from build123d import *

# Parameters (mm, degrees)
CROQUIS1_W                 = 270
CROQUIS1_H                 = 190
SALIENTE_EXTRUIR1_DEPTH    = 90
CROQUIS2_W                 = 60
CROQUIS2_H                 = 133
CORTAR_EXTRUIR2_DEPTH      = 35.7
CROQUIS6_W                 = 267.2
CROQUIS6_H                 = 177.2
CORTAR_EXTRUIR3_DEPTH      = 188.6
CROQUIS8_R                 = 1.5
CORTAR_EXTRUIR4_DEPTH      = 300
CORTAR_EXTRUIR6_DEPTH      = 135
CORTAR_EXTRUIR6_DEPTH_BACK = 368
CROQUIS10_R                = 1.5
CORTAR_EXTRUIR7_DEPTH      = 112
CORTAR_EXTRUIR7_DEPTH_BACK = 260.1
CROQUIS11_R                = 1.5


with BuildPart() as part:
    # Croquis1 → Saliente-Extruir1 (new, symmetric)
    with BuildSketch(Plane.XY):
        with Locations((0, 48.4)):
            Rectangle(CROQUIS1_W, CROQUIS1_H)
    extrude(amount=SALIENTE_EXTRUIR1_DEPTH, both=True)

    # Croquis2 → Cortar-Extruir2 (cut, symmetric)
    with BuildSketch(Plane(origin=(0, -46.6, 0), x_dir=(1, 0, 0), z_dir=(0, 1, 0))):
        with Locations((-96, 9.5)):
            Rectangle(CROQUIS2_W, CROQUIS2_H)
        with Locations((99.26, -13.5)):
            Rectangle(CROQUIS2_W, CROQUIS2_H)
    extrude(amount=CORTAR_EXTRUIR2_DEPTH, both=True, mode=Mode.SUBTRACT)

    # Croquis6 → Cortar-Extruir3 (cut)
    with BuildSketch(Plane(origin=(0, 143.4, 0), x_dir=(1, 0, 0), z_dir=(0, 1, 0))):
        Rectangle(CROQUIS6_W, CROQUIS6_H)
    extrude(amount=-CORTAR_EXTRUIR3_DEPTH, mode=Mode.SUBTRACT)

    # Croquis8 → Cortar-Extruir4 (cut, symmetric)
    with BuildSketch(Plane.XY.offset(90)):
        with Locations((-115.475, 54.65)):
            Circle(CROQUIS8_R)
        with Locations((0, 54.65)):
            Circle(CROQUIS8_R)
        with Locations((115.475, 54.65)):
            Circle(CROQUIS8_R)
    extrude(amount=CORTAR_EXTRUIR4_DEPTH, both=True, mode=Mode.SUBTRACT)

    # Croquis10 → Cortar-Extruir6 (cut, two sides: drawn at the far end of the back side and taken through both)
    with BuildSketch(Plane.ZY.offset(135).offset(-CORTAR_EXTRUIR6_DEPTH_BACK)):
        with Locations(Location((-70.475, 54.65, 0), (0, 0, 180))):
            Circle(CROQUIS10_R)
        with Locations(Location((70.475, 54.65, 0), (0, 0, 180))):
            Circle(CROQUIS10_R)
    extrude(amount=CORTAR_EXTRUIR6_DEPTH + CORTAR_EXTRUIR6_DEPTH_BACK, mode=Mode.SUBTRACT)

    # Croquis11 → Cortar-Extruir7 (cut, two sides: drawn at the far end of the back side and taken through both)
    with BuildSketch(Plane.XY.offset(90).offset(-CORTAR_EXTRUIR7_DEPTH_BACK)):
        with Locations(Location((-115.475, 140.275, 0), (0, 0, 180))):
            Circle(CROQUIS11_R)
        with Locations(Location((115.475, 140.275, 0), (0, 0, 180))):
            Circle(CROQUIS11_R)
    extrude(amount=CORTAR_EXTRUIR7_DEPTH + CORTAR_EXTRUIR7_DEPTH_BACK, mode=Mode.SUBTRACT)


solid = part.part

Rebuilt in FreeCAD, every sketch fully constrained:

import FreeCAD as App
import Part
import Sketcher
from FreeCAD import Vector
Q = App.Units.Quantity

doc = App.newDocument("Part")
body = doc.addObject("PartDesign::Body", "Body")

# Sketch on XY plane
sketch1 = body.newObject("Sketcher::SketchObject", "Sketch")
sketch1.AttachmentSupport = (doc.getObject("XY_Plane"), [""])
sketch1.MapMode = "FlatFace"
sketch1.addGeometry([
    Part.LineSegment(Vector(-135, 143, 0), Vector(-135, -47, 0)),
    Part.LineSegment(Vector(-135, -47, 0), Vector(135, -47, 0)),
    Part.LineSegment(Vector(135, -47, 0), Vector(135, 143, 0)),
    Part.LineSegment(Vector(135, 143, 0), Vector(-135, 143, 0)),
], False)
sketch1.addConstraint([
    Sketcher.Constraint("Coincident", 0, 2, 1, 1),
    Sketcher.Constraint("Coincident", 1, 2, 2, 1),
    Sketcher.Constraint("Coincident", 2, 2, 3, 1),
    Sketcher.Constraint("Coincident", 3, 2, 0, 1),
    Sketcher.Constraint("Vertical", 0),
    Sketcher.Constraint("Horizontal", 1),
    Sketcher.Constraint("Vertical", 2),
    Sketcher.Constraint("Horizontal", 3),
    Sketcher.Constraint("DistanceX", 1, 1, 1, 2, Q("270 mm")),
    Sketcher.Constraint("DistanceY", 0, 2, 0, 1, Q("190 mm")),
    Sketcher.Constraint("DistanceX", 0, 2, -1, 1, Q("135 mm")),
    Sketcher.Constraint("DistanceY", 0, 2, -1, 1, Q("46.6 mm")),
])
pad1 = body.newObject("PartDesign::Pad", "Pad")
pad1.Profile = sketch1
pad1.Length = 180
pad1.Midplane = True

# Sketch on XZ plane
sketch2 = body.newObject("Sketcher::SketchObject", "Sketch001")
sketch2.AttachmentSupport = (doc.getObject("XZ_Plane"), [""])
sketch2.MapMode = "FlatFace"
sketch2.AttachmentOffset = App.Placement(Vector(0, 0, 46.6), App.Rotation())
sketch2.addGeometry([
    Part.LineSegment(Vector(-126, -76, 0), Vector(-126, 57, 0)),  # 0
    Part.LineSegment(Vector(-126, 57, 0), Vector(-66, 57, 0)),  # 1
    Part.LineSegment(Vector(-66, 57, 0), Vector(-66, -76, 0)),  # 2
    Part.LineSegment(Vector(-66, -76, 0), Vector(-126, -76, 0)),  # 3
    Part.LineSegment(Vector(69, -53, 0), Vector(69, 80, 0)),  # 4
    Part.LineSegment(Vector(69, 80, 0), Vector(129, 80, 0)),  # 5
    Part.LineSegment(Vector(129, 80, 0), Vector(129, -53, 0)),  # 6
    Part.LineSegment(Vector(129, -53, 0), Vector(69, -53, 0)),  # 7
], False)
sketch2.addConstraint([
    Sketcher.Constraint("Coincident", 0, 2, 1, 1),
    Sketcher.Constraint("Coincident", 1, 2, 2, 1),
    Sketcher.Constraint("Coincident", 2, 2, 3, 1),
    Sketcher.Constraint("Coincident", 3, 2, 0, 1),
    Sketcher.Constraint("Coincident", 4, 2, 5, 1),
    Sketcher.Constraint("Coincident", 5, 2, 6, 1),
    Sketcher.Constraint("Coincident", 6, 2, 7, 1),
    Sketcher.Constraint("Coincident", 7, 2, 4, 1),
    Sketcher.Constraint("Vertical", 0),
    Sketcher.Constraint("Horizontal", 1),
    Sketcher.Constraint("Vertical", 2),
    Sketcher.Constraint("Horizontal", 3),
    Sketcher.Constraint("Vertical", 4),
    Sketcher.Constraint("Horizontal", 5),
    Sketcher.Constraint("Vertical", 6),
    Sketcher.Constraint("Horizontal", 7),
    Sketcher.Constraint("Equal", 3, 5),
    Sketcher.Constraint("Equal", 2, 4),
    Sketcher.Constraint("DistanceX", 1, 1, 1, 2, Q("60 mm")),
    Sketcher.Constraint("DistanceY", 0, 1, 0, 2, Q("133 mm")),
    Sketcher.Constraint("DistanceX", 0, 2, -1, 1, Q("126 mm")),
    Sketcher.Constraint("DistanceY", -1, 1, 0, 2, Q("57 mm")),
    Sketcher.Constraint("DistanceY", -1, 1, 4, 2, Q("80 mm")),
    Sketcher.Constraint("DistanceX", -1, 1, 4, 2, Q("69.26 mm")),
])
pocket1 = body.newObject("PartDesign::Pocket", "Pocket")
pocket1.Profile = sketch2
pocket1.Length = 71.4
pocket1.Midplane = True

# Sketch on XZ plane
sketch3 = body.newObject("Sketcher::SketchObject", "Sketch002")
sketch3.AttachmentSupport = (doc.getObject("XZ_Plane"), [""])
sketch3.MapMode = "FlatFace"
sketch3.AttachmentOffset = App.Placement(Vector(0, 0, -143.4), App.Rotation())
sketch3.addGeometry([
    Part.LineSegment(Vector(-134, -89, 0), Vector(-134, 89, 0)),
    Part.LineSegment(Vector(-134, 89, 0), Vector(134, 89, 0)),
    Part.LineSegment(Vector(134, 89, 0), Vector(134, -89, 0)),
    Part.LineSegment(Vector(134, -89, 0), Vector(-134, -89, 0)),
], False)
sketch3.addConstraint([
    Sketcher.Constraint("Coincident", 0, 2, 1, 1),
    Sketcher.Constraint("Coincident", 1, 2, 2, 1),
    Sketcher.Constraint("Coincident", 2, 2, 3, 1),
    Sketcher.Constraint("Coincident", 3, 2, 0, 1),
    Sketcher.Constraint("Vertical", 0),
    Sketcher.Constraint("Horizontal", 1),
    Sketcher.Constraint("Vertical", 2),
    Sketcher.Constraint("Horizontal", 3),
    Sketcher.Constraint("Symmetric", 0, 2, 2, 2, -1, 1),
    Sketcher.Constraint("DistanceX", 1, 1, 1, 2, Q("267.2 mm")),
    Sketcher.Constraint("DistanceY", 0, 1, 0, 2, Q("177.2 mm")),
])
pocket2 = body.newObject("PartDesign::Pocket", "Pocket001")
pocket2.Profile = sketch3
pocket2.Length = 188.6
pocket2.Reversed = True

# Sketch on XY plane
sketch4 = body.newObject("Sketcher::SketchObject", "Sketch003")
sketch4.AttachmentSupport = (doc.getObject("XY_Plane"), [""])
sketch4.MapMode = "FlatFace"
sketch4.AttachmentOffset = App.Placement(Vector(0, 0, 90), App.Rotation())
sketch4.addGeometry([
    Part.Circle(Vector(-115.5, 54.6, 0), Vector(0, 0, 1), 1.5),
    Part.Circle(Vector(0, 54.6, 0), Vector(0, 0, 1), 1.5),
    Part.Circle(Vector(115.5, 54.6, 0), Vector(0, 0, 1), 1.5),
], False)
sketch4.addConstraint([
    Sketcher.Constraint("Equal", 0, 1),
    Sketcher.Constraint("Equal", 1, 2),
    Sketcher.Constraint("Symmetric", 0, 3, 2, 3, -2),
    Sketcher.Constraint("PointOnObject", 1, 3, -2),
    Sketcher.Constraint("Horizontal", 0, 3, 1, 3),
    Sketcher.Constraint("Diameter", 0, Q("3 mm")),
    Sketcher.Constraint("DistanceY", -1, 1, 0, 3, Q("54.65 mm")),
    Sketcher.Constraint("DistanceX", 0, 3, 2, 3, Q("230.95 mm")),
])
pocket3 = body.newObject("PartDesign::Pocket", "Pocket002")
pocket3.Profile = sketch4
pocket3.Length = 600
pocket3.Midplane = True

# Sketch on YZ plane
sketch5 = body.newObject("Sketcher::SketchObject", "Sketch004")
sketch5.AttachmentSupport = (doc.getObject("YZ_Plane"), [""])
sketch5.MapMode = "FlatFace"
sketch5.AttachmentOffset = App.Placement(Vector(0, 0, -135), App.Rotation())
sketch5.addGeometry([
    Part.Circle(Vector(54.6, -70.5, 0), Vector(0, 0, 1), 1.5),
    Part.Circle(Vector(54.6, 70.5, 0), Vector(0, 0, 1), 1.5),
], False)
sketch5.addConstraint([
    Sketcher.Constraint("Equal", 0, 1),
    Sketcher.Constraint("Symmetric", 0, 3, 1, 3, -1),
    Sketcher.Constraint("Diameter", 0, Q("3 mm")),
    Sketcher.Constraint("DistanceX", -1, 1, 0, 3, Q("54.65 mm")),
    Sketcher.Constraint("DistanceY", 0, 3, 1, 3, Q("140.95 mm")),
])
pocket4 = body.newObject("PartDesign::Pocket", "Pocket003")
pocket4.Profile = sketch5
pocket4.Type = "ThroughAll"
pocket4.Midplane = True

# Sketch on XY plane
sketch6 = body.newObject("Sketcher::SketchObject", "Sketch005")
sketch6.AttachmentSupport = (doc.getObject("XY_Plane"), [""])
sketch6.MapMode = "FlatFace"
sketch6.AttachmentOffset = App.Placement(Vector(0, 0, 90), App.Rotation())
sketch6.addGeometry([
    Part.Circle(Vector(-115.5, 140.3, 0), Vector(0, 0, 1), 1.5),
    Part.Circle(Vector(115.5, 140.3, 0), Vector(0, 0, 1), 1.5),
], False)
sketch6.addConstraint([
    Sketcher.Constraint("Equal", 0, 1),
    Sketcher.Constraint("Symmetric", 0, 3, 1, 3, -2),
    Sketcher.Constraint("Diameter", 0, Q("3 mm")),
    Sketcher.Constraint("DistanceX", 0, 3, 1, 3, Q("230.95 mm")),
    Sketcher.Constraint("DistanceY", -1, 1, 0, 3, Q("140.275 mm")),
])
pocket5 = body.newObject("PartDesign::Pocket", "Pocket004")
pocket5.Profile = sketch6
pocket5.Type = "ThroughAll"
pocket5.Midplane = True

doc.recompute()
